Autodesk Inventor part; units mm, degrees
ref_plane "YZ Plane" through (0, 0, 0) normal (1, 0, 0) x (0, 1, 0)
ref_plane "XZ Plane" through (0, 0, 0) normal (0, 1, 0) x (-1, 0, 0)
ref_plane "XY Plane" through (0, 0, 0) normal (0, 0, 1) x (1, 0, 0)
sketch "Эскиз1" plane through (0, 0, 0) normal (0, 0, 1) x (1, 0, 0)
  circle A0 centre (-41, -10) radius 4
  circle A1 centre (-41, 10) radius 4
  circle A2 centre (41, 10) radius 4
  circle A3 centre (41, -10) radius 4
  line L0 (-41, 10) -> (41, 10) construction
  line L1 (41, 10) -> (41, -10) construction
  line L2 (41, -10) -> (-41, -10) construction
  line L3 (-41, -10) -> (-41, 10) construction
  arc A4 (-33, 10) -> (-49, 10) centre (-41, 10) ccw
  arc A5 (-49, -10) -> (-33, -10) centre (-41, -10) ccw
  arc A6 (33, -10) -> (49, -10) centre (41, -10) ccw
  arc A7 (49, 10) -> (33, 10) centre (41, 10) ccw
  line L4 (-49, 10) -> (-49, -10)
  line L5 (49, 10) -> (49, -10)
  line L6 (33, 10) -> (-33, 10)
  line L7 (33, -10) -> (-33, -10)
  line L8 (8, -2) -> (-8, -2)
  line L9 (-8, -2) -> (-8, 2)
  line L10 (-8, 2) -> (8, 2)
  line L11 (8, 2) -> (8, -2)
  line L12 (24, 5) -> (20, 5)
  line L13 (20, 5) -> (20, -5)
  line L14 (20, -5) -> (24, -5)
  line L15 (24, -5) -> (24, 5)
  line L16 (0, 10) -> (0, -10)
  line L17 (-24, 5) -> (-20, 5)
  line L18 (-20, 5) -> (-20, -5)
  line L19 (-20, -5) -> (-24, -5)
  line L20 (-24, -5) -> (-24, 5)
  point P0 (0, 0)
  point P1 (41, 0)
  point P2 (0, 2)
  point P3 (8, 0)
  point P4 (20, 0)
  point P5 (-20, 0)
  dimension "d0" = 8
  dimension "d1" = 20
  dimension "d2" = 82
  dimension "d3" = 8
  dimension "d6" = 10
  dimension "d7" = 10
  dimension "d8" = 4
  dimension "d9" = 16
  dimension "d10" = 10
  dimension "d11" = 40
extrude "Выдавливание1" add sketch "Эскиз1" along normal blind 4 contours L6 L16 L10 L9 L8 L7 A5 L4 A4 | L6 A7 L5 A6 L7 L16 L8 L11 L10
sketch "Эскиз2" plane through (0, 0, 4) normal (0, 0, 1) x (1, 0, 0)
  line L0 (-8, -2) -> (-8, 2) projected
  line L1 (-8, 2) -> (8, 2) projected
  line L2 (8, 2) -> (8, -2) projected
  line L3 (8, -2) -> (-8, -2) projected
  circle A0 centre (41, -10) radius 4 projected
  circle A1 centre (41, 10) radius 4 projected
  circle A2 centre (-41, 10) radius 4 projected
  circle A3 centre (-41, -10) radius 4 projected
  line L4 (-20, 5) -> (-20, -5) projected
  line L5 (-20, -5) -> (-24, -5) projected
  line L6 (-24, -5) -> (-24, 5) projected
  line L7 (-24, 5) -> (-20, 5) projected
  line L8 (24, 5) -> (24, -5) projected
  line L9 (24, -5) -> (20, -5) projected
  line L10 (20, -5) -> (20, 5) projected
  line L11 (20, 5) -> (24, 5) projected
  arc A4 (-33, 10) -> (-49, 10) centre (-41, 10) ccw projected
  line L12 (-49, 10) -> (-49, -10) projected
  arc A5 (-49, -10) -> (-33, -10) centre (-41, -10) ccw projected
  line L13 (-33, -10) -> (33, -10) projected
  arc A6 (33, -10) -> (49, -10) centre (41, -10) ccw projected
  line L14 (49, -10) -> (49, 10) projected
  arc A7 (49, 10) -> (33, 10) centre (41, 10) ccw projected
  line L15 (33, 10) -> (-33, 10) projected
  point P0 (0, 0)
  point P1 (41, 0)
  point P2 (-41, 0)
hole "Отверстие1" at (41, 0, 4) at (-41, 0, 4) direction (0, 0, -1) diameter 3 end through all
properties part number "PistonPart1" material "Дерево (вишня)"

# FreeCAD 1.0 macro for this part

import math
import FreeCAD as App
import Part
import Sketcher
from FreeCAD import Vector
Q = App.Units.Quantity

doc = App.newDocument("Part")
body = doc.addObject("PartDesign::Body", "Body")

# Sketch on XY plane
sketch1 = doc.addObject("Sketcher::SketchObject", "Sketch")
body.addObject(sketch1)
sketch1.AttachmentSupport = (doc.XY_Plane, [""])
sketch1.MapMode = "FlatFace"
sketch1.addGeometry([
    Part.ArcOfCircle(Part.Circle(Vector(-41, 10, 0), Vector(0, 0, 1), 8), math.radians(0), math.radians(180)),  # 0
    Part.LineSegment(Vector(-49, 10, 0), Vector(-49, -10, 0)),  # 1
    Part.ArcOfCircle(Part.Circle(Vector(-41, -10, 0), Vector(0, 0, 1), 8), math.radians(180), math.radians(360)),  # 2
    Part.LineSegment(Vector(-33, -10, 0), Vector(33, -10, 0)),  # 3
    Part.ArcOfCircle(Part.Circle(Vector(41, -10, 0), Vector(0, 0, 1), 8), math.radians(180), math.radians(360)),  # 4
    Part.LineSegment(Vector(49, -10, 0), Vector(49, 10, 0)),  # 5
    Part.ArcOfCircle(Part.Circle(Vector(41, 10, 0), Vector(0, 0, 1), 8), math.radians(0), math.radians(180)),  # 6
    Part.LineSegment(Vector(33, 10, 0), Vector(-33, 10, 0)),  # 7
    Part.LineSegment(Vector(-8, 2, 0), Vector(8, 2, 0)),  # 8
    Part.LineSegment(Vector(8, 2, 0), Vector(8, -2, 0)),  # 9
    Part.LineSegment(Vector(8, -2, 0), Vector(-8, -2, 0)),  # 10
    Part.LineSegment(Vector(-8, -2, 0), Vector(-8, 2, 0)),  # 11
    Part.Circle(Vector(-41, -10, 0), Vector(0, 0, 1), 4),  # 12
    Part.LineSegment(Vector(-24, -5, 0), Vector(-24, 5, 0)),  # 13
    Part.LineSegment(Vector(-24, 5, 0), Vector(-20, 5, 0)),  # 14
    Part.LineSegment(Vector(-20, 5, 0), Vector(-20, -5, 0)),  # 15
    Part.LineSegment(Vector(-20, -5, 0), Vector(-24, -5, 0)),  # 16
    Part.Circle(Vector(-41, 10, 0), Vector(0, 0, 1), 4),  # 17
    Part.LineSegment(Vector(24, 5, 0), Vector(24, -5, 0)),  # 18
    Part.LineSegment(Vector(24, -5, 0), Vector(20, -5, 0)),  # 19
    Part.LineSegment(Vector(20, -5, 0), Vector(20, 5, 0)),  # 20
    Part.LineSegment(Vector(20, 5, 0), Vector(24, 5, 0)),  # 21
    Part.Circle(Vector(41, 10, 0), Vector(0, 0, 1), 4),  # 22
    Part.Circle(Vector(41, -10, 0), Vector(0, 0, 1), 4),  # 23
], False)
sketch1.addConstraint([
    Sketcher.Constraint("Tangent", 0, 2, 1, 1),
    Sketcher.Constraint("Tangent", 1, 2, 2, 1),
    Sketcher.Constraint("Coincident", 2, 2, 3, 1),
    Sketcher.Constraint("Coincident", 3, 2, 4, 1),
    Sketcher.Constraint("Tangent", 4, 2, 5, 1),
    Sketcher.Constraint("Tangent", 5, 2, 6, 1),
    Sketcher.Constraint("Coincident", 6, 2, 7, 1),
    Sketcher.Constraint("Coincident", 7, 2, 0, 1),
    Sketcher.Constraint("Coincident", 8, 2, 9, 1),
    Sketcher.Constraint("Coincident", 9, 2, 10, 1),
    Sketcher.Constraint("Coincident", 10, 2, 11, 1),
    Sketcher.Constraint("Coincident", 11, 2, 8, 1),
    Sketcher.Constraint("Coincident", 13, 2, 14, 1),
    Sketcher.Constraint("Coincident", 14, 2, 15, 1),
    Sketcher.Constraint("Coincident", 15, 2, 16, 1),
    Sketcher.Constraint("Coincident", 16, 2, 13, 1),
    Sketcher.Constraint("Coincident", 18, 2, 19, 1),
    Sketcher.Constraint("Coincident", 19, 2, 20, 1),
    Sketcher.Constraint("Coincident", 20, 2, 21, 1),
    Sketcher.Constraint("Coincident", 21, 2, 18, 1),
    Sketcher.Constraint("Vertical", 1),
    Sketcher.Constraint("Horizontal", 3),
    Sketcher.Constraint("Vertical", 5),
    Sketcher.Constraint("Horizontal", 7),
    Sketcher.Constraint("Horizontal", 8),
    Sketcher.Constraint("Vertical", 9),
    Sketcher.Constraint("Horizontal", 10),
    Sketcher.Constraint("Vertical", 11),
    Sketcher.Constraint("Vertical", 13),
    Sketcher.Constraint("Horizontal", 14),
    Sketcher.Constraint("Vertical", 15),
    Sketcher.Constraint("Horizontal", 16),
    Sketcher.Constraint("Vertical", 18),
    Sketcher.Constraint("Horizontal", 19),
    Sketcher.Constraint("Vertical", 20),
    Sketcher.Constraint("Horizontal", 21),
    Sketcher.Constraint("Coincident", 12, 3, 2, 3),
    Sketcher.Constraint("Coincident", 17, 3, 0, 3),
    Sketcher.Constraint("Coincident", 22, 3, 6, 3),
    Sketcher.Constraint("Coincident", 23, 3, 4, 3),
    Sketcher.Constraint("Equal", 0, 2),
    Sketcher.Constraint("Equal", 2, 4),
    Sketcher.Constraint("Equal", 4, 6),
    Sketcher.Constraint("Equal", 12, 17),
    Sketcher.Constraint("Equal", 17, 22),
    Sketcher.Constraint("Equal", 22, 23),
    Sketcher.Constraint("Symmetric", 0, 3, 4, 3, -1, 1),
    Sketcher.Constraint("Symmetric", 8, 2, 10, 2, -1, 1),
    Sketcher.Constraint("Symmetric", 13, 2, 18, 2, -1, 1),
    Sketcher.Constraint("Symmetric", 15, 2, 20, 2, -1, 1),
    Sketcher.Constraint("Horizontal", 2, 3, 4, 3),
    Sketcher.Constraint("Horizontal", 0, 3, 6, 3),
    Sketcher.Constraint("Horizontal", 1, 2, 2, 2),
    Sketcher.Constraint("Horizontal", 5, 2, 6, 2),
    Sketcher.Constraint("Horizontal", 16, 2, 18, 2),
    Sketcher.Constraint("Equal", 21, 9),
    Sketcher.Constraint("Diameter", 12, Q("8 mm")),
    Sketcher.Constraint("Radius", 0, Q("8 mm")),
    Sketcher.Constraint("DistanceX", 8, 1, 8, 2, Q("16 mm")),
    Sketcher.Constraint("DistanceX", 14, 1, 14, 2, Q("4 mm")),
    Sketcher.Constraint("DistanceY", 1, 2, 1, 1, Q("20 mm")),
    Sketcher.Constraint("DistanceY", 13, 1, 13, 2, Q("10 mm")),
    Sketcher.Constraint("DistanceX", 14, 2, -1, 1, Q("20 mm")),
    Sketcher.Constraint("DistanceX", 2, 3, 4, 3, Q("82 mm")),
])
pad1 = doc.addObject("PartDesign::Pad", "Pad")
body.addObject(pad1)
pad1.Profile = sketch1
pad1.Length = 4

# Sketch on XY plane
sketch2 = doc.addObject("Sketcher::SketchObject", "Sketch001")
body.addObject(sketch2)
sketch2.AttachmentSupport = (doc.XY_Plane, [""])
sketch2.MapMode = "FlatFace"
sketch2.AttachmentOffset = App.Placement(Vector(0, 0, 4), App.Rotation())
sketch2.addGeometry([
    Part.Circle(Vector(41, 0, 0), Vector(0, 0, 1), 1.5),
    Part.Circle(Vector(-41, 0, 0), Vector(0, 0, 1), 1.5),
], False)
sketch2.addConstraint([
    Sketcher.Constraint("Equal", 0, 1),
    Sketcher.Constraint("Symmetric", 0, 3, 1, 3, -1, 1),
    Sketcher.Constraint("PointOnObject", 0, 3, -1),
    Sketcher.Constraint("Diameter", 0, Q("3 mm")),
    Sketcher.Constraint("DistanceX", -1, 1, 0, 3, Q("41 mm")),
])
doc.recompute()
hole = doc.addObject("PartDesign::Hole", "Hole")
body.addObject(hole)
hole.Profile = sketch2
hole.ThreadType = "None"
hole.Diameter = 3
hole.DepthType = "ThroughAll"

doc.recompute()
